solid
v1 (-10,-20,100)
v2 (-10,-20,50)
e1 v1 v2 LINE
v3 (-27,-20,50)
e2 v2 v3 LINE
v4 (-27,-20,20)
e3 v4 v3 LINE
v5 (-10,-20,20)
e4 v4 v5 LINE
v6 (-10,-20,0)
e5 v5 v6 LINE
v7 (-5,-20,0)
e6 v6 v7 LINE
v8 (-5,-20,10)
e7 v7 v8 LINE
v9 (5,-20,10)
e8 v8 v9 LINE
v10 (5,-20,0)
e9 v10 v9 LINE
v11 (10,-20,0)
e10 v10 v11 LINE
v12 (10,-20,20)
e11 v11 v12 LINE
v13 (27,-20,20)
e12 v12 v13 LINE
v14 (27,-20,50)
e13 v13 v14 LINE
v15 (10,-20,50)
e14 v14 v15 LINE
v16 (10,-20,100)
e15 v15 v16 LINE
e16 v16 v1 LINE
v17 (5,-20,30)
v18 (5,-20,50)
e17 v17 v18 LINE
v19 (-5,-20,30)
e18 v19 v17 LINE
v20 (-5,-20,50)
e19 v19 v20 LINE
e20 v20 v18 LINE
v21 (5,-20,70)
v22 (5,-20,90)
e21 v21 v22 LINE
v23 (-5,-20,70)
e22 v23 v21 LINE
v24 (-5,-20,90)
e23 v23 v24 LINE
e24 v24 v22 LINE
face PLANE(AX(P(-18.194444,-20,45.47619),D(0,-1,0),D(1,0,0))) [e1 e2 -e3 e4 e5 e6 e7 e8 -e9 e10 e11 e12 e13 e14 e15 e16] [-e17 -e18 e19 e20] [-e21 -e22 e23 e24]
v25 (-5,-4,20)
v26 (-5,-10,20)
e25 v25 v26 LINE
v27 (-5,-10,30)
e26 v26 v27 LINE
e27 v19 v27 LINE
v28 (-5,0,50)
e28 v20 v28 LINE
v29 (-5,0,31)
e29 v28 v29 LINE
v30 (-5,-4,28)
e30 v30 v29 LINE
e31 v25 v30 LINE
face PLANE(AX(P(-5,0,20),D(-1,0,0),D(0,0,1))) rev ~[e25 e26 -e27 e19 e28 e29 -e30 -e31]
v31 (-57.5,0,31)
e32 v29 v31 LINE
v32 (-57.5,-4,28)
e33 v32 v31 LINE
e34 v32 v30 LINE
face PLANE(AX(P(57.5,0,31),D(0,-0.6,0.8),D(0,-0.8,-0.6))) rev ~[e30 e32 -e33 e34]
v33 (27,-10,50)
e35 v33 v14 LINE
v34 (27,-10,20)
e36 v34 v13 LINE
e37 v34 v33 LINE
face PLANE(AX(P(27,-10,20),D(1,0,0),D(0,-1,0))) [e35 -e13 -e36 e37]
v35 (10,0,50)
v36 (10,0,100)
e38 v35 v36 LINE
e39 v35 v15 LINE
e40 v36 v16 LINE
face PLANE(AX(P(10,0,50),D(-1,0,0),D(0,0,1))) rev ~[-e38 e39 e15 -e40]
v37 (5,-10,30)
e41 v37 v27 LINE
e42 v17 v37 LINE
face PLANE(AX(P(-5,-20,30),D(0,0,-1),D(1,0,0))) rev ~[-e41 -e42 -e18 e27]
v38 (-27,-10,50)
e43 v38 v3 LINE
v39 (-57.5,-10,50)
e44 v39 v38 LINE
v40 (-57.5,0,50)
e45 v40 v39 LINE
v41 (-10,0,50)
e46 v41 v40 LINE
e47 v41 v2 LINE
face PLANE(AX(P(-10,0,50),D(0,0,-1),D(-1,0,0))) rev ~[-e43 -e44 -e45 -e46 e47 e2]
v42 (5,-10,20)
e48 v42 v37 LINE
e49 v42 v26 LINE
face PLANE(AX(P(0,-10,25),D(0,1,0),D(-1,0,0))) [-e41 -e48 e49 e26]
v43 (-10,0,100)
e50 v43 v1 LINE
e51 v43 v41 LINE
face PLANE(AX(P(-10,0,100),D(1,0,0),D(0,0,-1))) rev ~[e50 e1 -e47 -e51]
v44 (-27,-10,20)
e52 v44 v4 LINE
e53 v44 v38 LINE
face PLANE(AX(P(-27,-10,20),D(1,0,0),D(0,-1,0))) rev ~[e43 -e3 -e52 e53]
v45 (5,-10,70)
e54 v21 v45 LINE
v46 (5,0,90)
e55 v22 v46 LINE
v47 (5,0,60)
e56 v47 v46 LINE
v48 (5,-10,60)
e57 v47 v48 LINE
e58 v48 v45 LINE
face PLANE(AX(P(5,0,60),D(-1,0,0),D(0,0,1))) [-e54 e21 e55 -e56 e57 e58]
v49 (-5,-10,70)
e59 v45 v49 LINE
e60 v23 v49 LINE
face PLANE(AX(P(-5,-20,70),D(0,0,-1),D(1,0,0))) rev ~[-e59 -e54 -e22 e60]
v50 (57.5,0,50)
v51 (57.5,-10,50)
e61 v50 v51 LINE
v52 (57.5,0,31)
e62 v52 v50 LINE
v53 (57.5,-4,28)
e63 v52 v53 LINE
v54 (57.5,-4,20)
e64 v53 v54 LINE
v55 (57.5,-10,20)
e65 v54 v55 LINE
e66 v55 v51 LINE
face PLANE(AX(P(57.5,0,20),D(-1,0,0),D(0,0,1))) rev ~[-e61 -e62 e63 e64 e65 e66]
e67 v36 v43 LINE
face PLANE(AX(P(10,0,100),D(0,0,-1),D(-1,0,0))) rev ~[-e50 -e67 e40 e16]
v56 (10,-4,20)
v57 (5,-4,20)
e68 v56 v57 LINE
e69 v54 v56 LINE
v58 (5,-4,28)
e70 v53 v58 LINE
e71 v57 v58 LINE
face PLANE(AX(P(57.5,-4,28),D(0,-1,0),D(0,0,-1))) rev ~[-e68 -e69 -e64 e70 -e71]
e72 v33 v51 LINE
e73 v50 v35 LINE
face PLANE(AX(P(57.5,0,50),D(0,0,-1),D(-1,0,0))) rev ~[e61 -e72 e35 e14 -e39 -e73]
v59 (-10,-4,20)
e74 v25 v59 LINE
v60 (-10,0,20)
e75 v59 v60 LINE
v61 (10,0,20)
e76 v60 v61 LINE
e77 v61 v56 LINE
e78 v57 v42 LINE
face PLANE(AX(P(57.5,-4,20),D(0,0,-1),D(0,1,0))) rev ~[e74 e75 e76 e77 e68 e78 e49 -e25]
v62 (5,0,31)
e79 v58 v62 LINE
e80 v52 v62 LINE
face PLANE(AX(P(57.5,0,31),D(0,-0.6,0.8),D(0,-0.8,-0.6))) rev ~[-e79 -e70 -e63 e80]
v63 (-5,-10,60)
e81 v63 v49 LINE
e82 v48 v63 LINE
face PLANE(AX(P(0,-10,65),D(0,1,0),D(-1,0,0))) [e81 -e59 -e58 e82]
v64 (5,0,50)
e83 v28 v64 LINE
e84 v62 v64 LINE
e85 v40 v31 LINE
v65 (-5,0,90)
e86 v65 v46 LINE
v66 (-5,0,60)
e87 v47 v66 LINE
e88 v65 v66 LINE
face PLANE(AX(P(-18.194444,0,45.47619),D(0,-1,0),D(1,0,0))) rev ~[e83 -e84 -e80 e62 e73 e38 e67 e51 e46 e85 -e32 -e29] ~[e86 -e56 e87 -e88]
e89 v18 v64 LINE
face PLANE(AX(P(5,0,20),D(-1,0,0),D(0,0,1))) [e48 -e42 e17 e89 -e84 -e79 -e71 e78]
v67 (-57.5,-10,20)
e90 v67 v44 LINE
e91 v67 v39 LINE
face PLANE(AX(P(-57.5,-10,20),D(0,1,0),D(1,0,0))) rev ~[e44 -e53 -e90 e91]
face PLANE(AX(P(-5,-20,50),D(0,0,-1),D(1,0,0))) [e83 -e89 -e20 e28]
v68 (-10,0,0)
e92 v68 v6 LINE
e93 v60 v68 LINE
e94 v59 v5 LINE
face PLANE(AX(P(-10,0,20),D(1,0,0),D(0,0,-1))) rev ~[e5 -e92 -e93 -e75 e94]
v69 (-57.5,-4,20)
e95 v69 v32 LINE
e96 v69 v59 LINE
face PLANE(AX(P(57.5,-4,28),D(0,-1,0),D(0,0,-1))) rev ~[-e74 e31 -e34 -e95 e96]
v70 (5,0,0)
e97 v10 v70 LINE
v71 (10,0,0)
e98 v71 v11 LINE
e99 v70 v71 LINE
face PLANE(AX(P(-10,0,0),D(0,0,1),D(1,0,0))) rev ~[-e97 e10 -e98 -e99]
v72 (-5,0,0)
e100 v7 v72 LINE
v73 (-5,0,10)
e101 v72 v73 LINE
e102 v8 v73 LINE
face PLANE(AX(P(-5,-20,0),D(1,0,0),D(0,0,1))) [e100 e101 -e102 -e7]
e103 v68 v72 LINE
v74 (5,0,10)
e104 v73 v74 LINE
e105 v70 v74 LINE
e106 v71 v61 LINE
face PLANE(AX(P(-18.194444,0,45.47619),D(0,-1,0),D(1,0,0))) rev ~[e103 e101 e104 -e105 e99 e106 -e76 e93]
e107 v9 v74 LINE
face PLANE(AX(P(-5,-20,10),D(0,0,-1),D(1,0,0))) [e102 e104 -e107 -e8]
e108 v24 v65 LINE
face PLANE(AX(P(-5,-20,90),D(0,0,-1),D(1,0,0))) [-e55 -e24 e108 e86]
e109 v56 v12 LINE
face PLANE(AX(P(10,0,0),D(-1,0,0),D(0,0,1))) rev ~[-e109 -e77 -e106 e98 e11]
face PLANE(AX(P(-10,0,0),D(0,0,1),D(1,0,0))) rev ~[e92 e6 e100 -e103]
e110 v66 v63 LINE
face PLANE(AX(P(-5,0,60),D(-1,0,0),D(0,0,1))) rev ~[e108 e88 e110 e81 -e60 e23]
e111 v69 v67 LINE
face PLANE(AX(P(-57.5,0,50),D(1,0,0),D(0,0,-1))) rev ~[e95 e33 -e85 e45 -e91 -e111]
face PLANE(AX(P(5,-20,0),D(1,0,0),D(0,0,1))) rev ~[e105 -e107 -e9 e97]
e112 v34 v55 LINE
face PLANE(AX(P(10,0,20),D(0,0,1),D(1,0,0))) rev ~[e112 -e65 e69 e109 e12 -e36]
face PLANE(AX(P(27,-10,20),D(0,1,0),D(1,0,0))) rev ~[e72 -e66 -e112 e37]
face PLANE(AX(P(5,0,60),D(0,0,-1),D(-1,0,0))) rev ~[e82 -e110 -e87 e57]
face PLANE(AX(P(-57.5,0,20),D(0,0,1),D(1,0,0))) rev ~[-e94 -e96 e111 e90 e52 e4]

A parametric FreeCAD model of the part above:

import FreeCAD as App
import Part
import Sketcher

V = App.Vector

doc = App.newDocument("Part")
body = doc.addObject("PartDesign::Body", "Body")

# Sketch on XZ plane
sketch1 = body.newObject("Sketcher::SketchObject", "Sketch")
sketch1.AttachmentSupport = (doc.getObject("XZ_Plane"), [""])
sketch1.MapMode = "FlatFace"
sketch1.addGeometry([
    Part.LineSegment(V(-10, 0, 0), V(10, 0, 0)),  # 0
    Part.LineSegment(V(10, 0, 0), V(10, 20, 0)),  # 1
    Part.LineSegment(V(10, 20, 0), V(58, 20, 0)),  # 2
    Part.LineSegment(V(58, 20, 0), V(58, 50, 0)),  # 3
    Part.LineSegment(V(58, 50, 0), V(10, 50, 0)),  # 4
    Part.LineSegment(V(10, 50, 0), V(10, 100, 0)),  # 5
    Part.LineSegment(V(10, 100, 0), V(-10, 100, 0)),  # 6
    Part.LineSegment(V(-10, 100, 0), V(-10, 50, 0)),  # 7
    Part.LineSegment(V(-10, 50, 0), V(-58, 50, 0)),  # 8
    Part.LineSegment(V(-58, 50, 0), V(-58, 20, 0)),  # 9
    Part.LineSegment(V(-58, 20, 0), V(-10, 20, 0)),  # 10
    Part.LineSegment(V(-10, 20, 0), V(-10, 0, 0)),  # 11
], False)
sketch1.addConstraint([
    Sketcher.Constraint("Coincident", 0, 2, 1, 1),
    Sketcher.Constraint("Coincident", 1, 2, 2, 1),
    Sketcher.Constraint("Coincident", 2, 2, 3, 1),
    Sketcher.Constraint("Coincident", 3, 2, 4, 1),
    Sketcher.Constraint("Coincident", 4, 2, 5, 1),
    Sketcher.Constraint("Coincident", 5, 2, 6, 1),
    Sketcher.Constraint("Coincident", 6, 2, 7, 1),
    Sketcher.Constraint("Coincident", 7, 2, 8, 1),
    Sketcher.Constraint("Coincident", 8, 2, 9, 1),
    Sketcher.Constraint("Coincident", 9, 2, 10, 1),
    Sketcher.Constraint("Coincident", 10, 2, 11, 1),
    Sketcher.Constraint("Coincident", 11, 2, 0, 1),
    Sketcher.Constraint("Horizontal", 0),
    Sketcher.Constraint("Vertical", 1),
    Sketcher.Constraint("Horizontal", 2),
    Sketcher.Constraint("Vertical", 3),
    Sketcher.Constraint("Horizontal", 4),
    Sketcher.Constraint("Vertical", 5),
    Sketcher.Constraint("Horizontal", 6),
    Sketcher.Constraint("Vertical", 7),
    Sketcher.Constraint("Horizontal", 8),
    Sketcher.Constraint("Vertical", 9),
    Sketcher.Constraint("Horizontal", 10),
    Sketcher.Constraint("Vertical", 11),
    Sketcher.Constraint("Symmetric", 0, 2, 11, 2, -1, 1),
    Sketcher.Constraint("Symmetric", 4, 2, 7, 2, -2),
    Sketcher.Constraint("Symmetric", 2, 2, 9, 2, -2),
    Sketcher.Constraint("Vertical", 1, 2, 4, 2),
    Sketcher.Constraint("Equal", 6, 1),
    Sketcher.Constraint("DistanceX", 0, 1, 0, 2, 20.0),
    Sketcher.Constraint("DistanceY", 3, 1, 3, 2, 30.0),
    Sketcher.Constraint("DistanceY", 5, 1, 5, 2, 50.0),
    Sketcher.Constraint("DistanceX", 2, 1, 2, 2, 47.5),
])
pad1 = body.newObject("PartDesign::Pad", "Pad")
pad1.Profile = sketch1
pad1.Length = 20

# Sketch on XY plane
sketch2 = body.newObject("Sketcher::SketchObject", "Sketch001")
sketch2.AttachmentSupport = (doc.getObject("XY_Plane"), [""])
sketch2.MapMode = "FlatFace"
sketch2.AttachmentOffset = App.Placement(V(0, 0, 20), App.Rotation())
sketch2.addGeometry([
    Part.LineSegment(V(-58, -20, 0), V(-58, -10, 0)),
    Part.LineSegment(V(-58, -10, 0), V(-27, -10, 0)),
    Part.LineSegment(V(-27, -10, 0), V(-27, -20, 0)),
    Part.LineSegment(V(-27, -20, 0), V(-58, -20, 0)),
], False)
sketch2.addConstraint([
    Sketcher.Constraint("Coincident", 0, 2, 1, 1),
    Sketcher.Constraint("Coincident", 1, 2, 2, 1),
    Sketcher.Constraint("Coincident", 2, 2, 3, 1),
    Sketcher.Constraint("Coincident", 3, 2, 0, 1),
    Sketcher.Constraint("Vertical", 0),
    Sketcher.Constraint("Horizontal", 1),
    Sketcher.Constraint("Vertical", 2),
    Sketcher.Constraint("Horizontal", 3),
    Sketcher.Constraint("DistanceY", 0, 1, 0, 2, 10.0),
    Sketcher.Constraint("DistanceX", 1, 1, 1, 2, 30.5),
    Sketcher.Constraint("DistanceY", 0, 2, -1, 1, 10.0),
    Sketcher.Constraint("DistanceX", 1, 2, -1, 1, 27.0),
])
pocket1 = body.newObject("PartDesign::Pocket", "Pocket")
pocket1.Profile = sketch2
pocket1.Type = "ThroughAll"
pocket1.Reversed = True

# Sketch on XY plane
sketch3 = body.newObject("Sketcher::SketchObject", "Sketch002")
sketch3.AttachmentSupport = (doc.getObject("XY_Plane"), [""])
sketch3.MapMode = "FlatFace"
sketch3.AttachmentOffset = App.Placement(V(0, 0, 20), App.Rotation())
sketch3.addGeometry([
    Part.LineSegment(V(27, -20, 0), V(27, -10, 0)),
    Part.LineSegment(V(27, -10, 0), V(58, -10, 0)),
    Part.LineSegment(V(58, -10, 0), V(58, -20, 0)),
    Part.LineSegment(V(58, -20, 0), V(27, -20, 0)),
], False)
sketch3.addConstraint([
    Sketcher.Constraint("Coincident", 0, 2, 1, 1),
    Sketcher.Constraint("Coincident", 1, 2, 2, 1),
    Sketcher.Constraint("Coincident", 2, 2, 3, 1),
    Sketcher.Constraint("Coincident", 3, 2, 0, 1),
    Sketcher.Constraint("Vertical", 0),
    Sketcher.Constraint("Horizontal", 1),
    Sketcher.Constraint("Vertical", 2),
    Sketcher.Constraint("Horizontal", 3),
    Sketcher.Constraint("DistanceY", 0, 1, 0, 2, 10.0),
    Sketcher.Constraint("DistanceX", 1, 1, 1, 2, 30.5),
    Sketcher.Constraint("DistanceX", -1, 1, 0, 2, 27.0),
    Sketcher.Constraint("DistanceY", 0, 2, -1, 1, 10.0),
])
pocket2 = body.newObject("PartDesign::Pocket", "Pocket001")
pocket2.Profile = sketch3
pocket2.Type = "ThroughAll"
pocket2.Reversed = True

# Sketch on YZ plane
sketch4 = body.newObject("Sketcher::SketchObject", "Sketch003")
sketch4.AttachmentSupport = (doc.getObject("YZ_Plane"), [""])
sketch4.MapMode = "FlatFace"
sketch4.AttachmentOffset = App.Placement(V(0, 0, -57.5), App.Rotation())
sketch4.addGeometry([
    Part.LineSegment(V(0, 20, 0), V(-4, 20, 0)),
    Part.LineSegment(V(-4, 20, 0), V(-4, 28, 0)),
    Part.LineSegment(V(-4, 28, 0), V(0, 31, 0)),
    Part.LineSegment(V(0, 31, 0), V(0, 20, 0)),
], False)
sketch4.addConstraint([
    Sketcher.Constraint("Coincident", 0, 2, 1, 1),
    Sketcher.Constraint("Coincident", 1, 2, 2, 1),
    Sketcher.Constraint("Coincident", 2, 2, 3, 1),
    Sketcher.Constraint("Coincident", 3, 2, 0, 1),
    Sketcher.Constraint("Horizontal", 0),
    Sketcher.Constraint("Vertical", 1),
    Sketcher.Constraint("Vertical", 3),
    Sketcher.Constraint("PointOnObject", 2, 2, -2),
    Sketcher.Constraint("DistanceX", 0, 2, 0, 1, 4.0),
    Sketcher.Constraint("DistanceY", 1, 1, 1, 2, 8.0),
    Sketcher.Constraint("DistanceY", 3, 2, 3, 1, 11.0),
    Sketcher.Constraint("DistanceY", -1, 1, 0, 2, 20.0),
])
pocket3 = body.newObject("PartDesign::Pocket", "Pocket002")
pocket3.Profile = sketch4
pocket3.Length = 47.5
pocket3.Reversed = True

# Sketch on XZ plane
sketch5 = body.newObject("Sketcher::SketchObject", "Sketch004")
sketch5.AttachmentSupport = (doc.getObject("XZ_Plane"), [""])
sketch5.MapMode = "FlatFace"
sketch5.AttachmentOffset = App.Placement(V(0, 0, 20), App.Rotation())
sketch5.addGeometry([
    Part.LineSegment(V(-5, 90, 0), V(-5, 70, 0)),  # 0
    Part.LineSegment(V(-5, 70, 0), V(5, 70, 0)),  # 1
    Part.LineSegment(V(5, 70, 0), V(5, 90, 0)),  # 2
    Part.LineSegment(V(5, 90, 0), V(-5, 90, 0)),  # 3
    Part.LineSegment(V(-5, 50, 0), V(-5, 30, 0)),  # 4
    Part.LineSegment(V(-5, 30, 0), V(5, 30, 0)),  # 5
    Part.LineSegment(V(5, 30, 0), V(5, 50, 0)),  # 6
    Part.LineSegment(V(5, 50, 0), V(-5, 50, 0)),  # 7
    Part.LineSegment(V(-5, 10, 0), V(-5, 0, 0)),  # 8
    Part.LineSegment(V(-5, 0, 0), V(5, 0, 0)),  # 9
    Part.LineSegment(V(5, 0, 0), V(5, 10, 0)),  # 10
    Part.LineSegment(V(5, 10, 0), V(-5, 10, 0)),  # 11
], False)
sketch5.addConstraint([
    Sketcher.Constraint("Coincident", 0, 2, 1, 1),
    Sketcher.Constraint("Coincident", 1, 2, 2, 1),
    Sketcher.Constraint("Coincident", 2, 2, 3, 1),
    Sketcher.Constraint("Coincident", 3, 2, 0, 1),
    Sketcher.Constraint("Coincident", 4, 2, 5, 1),
    Sketcher.Constraint("Coincident", 5, 2, 6, 1),
    Sketcher.Constraint("Coincident", 6, 2, 7, 1),
    Sketcher.Constraint("Coincident", 7, 2, 4, 1),
    Sketcher.Constraint("Coincident", 8, 2, 9, 1),
    Sketcher.Constraint("Coincident", 9, 2, 10, 1),
    Sketcher.Constraint("Coincident", 10, 2, 11, 1),
    Sketcher.Constraint("Coincident", 11, 2, 8, 1),
    Sketcher.Constraint("Vertical", 0),
    Sketcher.Constraint("Horizontal", 1),
    Sketcher.Constraint("Vertical", 2),
    Sketcher.Constraint("Horizontal", 3),
    Sketcher.Constraint("Vertical", 4),
    Sketcher.Constraint("Horizontal", 5),
    Sketcher.Constraint("Vertical", 6),
    Sketcher.Constraint("Horizontal", 7),
    Sketcher.Constraint("Vertical", 8),
    Sketcher.Constraint("Horizontal", 9),
    Sketcher.Constraint("Vertical", 10),
    Sketcher.Constraint("Horizontal", 11),
    Sketcher.Constraint("Symmetric", 8, 2, 9, 2, -1, 1),
    Sketcher.Constraint("Vertical", 3, 2, 4, 2),
    Sketcher.Constraint("Vertical", 2, 2, 5, 2),
    Sketcher.Constraint("Vertical", 7, 2, 8, 2),
    Sketcher.Constraint("Vertical", 6, 2, 9, 2),
    Sketcher.Constraint("Equal", 2, 4),
    Sketcher.Constraint("Equal", 11, 8),
    Sketcher.Constraint("DistanceX", 1, 1, 1, 2, 10.0),
    Sketcher.Constraint("DistanceY", 0, 2, 0, 1, 20.0),
    Sketcher.Constraint("DistanceY", -1, 1, 0, 2, 70.0),
    Sketcher.Constraint("DistanceY", -1, 1, 4, 2, 30.0),
])
pocket4 = body.newObject("PartDesign::Pocket", "Pocket003")
pocket4.Profile = sketch5
pocket4.Type = "ThroughAll"

# Sketch on XZ plane
sketch6 = body.newObject("Sketcher::SketchObject", "Sketch005")
sketch6.AttachmentSupport = (doc.getObject("XZ_Plane"), [""])
sketch6.MapMode = "FlatFace"
sketch6.addGeometry([
    Part.LineSegment(V(5, 70, 0), V(5, 60, 0)),  # 0
    Part.LineSegment(V(5, 60, 0), V(-5, 60, 0)),  # 1
    Part.LineSegment(V(-5, 60, 0), V(-5, 70, 0)),  # 2
    Part.LineSegment(V(-5, 70, 0), V(5, 70, 0)),  # 3
    Part.LineSegment(V(5, 30, 0), V(5, 20, 0)),  # 4
    Part.LineSegment(V(5, 20, 0), V(-5, 20, 0)),  # 5
    Part.LineSegment(V(-5, 20, 0), V(-5, 30, 0)),  # 6
    Part.LineSegment(V(-5, 30, 0), V(5, 30, 0)),  # 7
], False)
sketch6.addConstraint([
    Sketcher.Constraint("Coincident", 0, 2, 1, 1),
    Sketcher.Constraint("Coincident", 1, 2, 2, 1),
    Sketcher.Constraint("Coincident", 2, 2, 3, 1),
    Sketcher.Constraint("Coincident", 3, 2, 0, 1),
    Sketcher.Constraint("Coincident", 4, 2, 5, 1),
    Sketcher.Constraint("Coincident", 5, 2, 6, 1),
    Sketcher.Constraint("Coincident", 6, 2, 7, 1),
    Sketcher.Constraint("Coincident", 7, 2, 4, 1),
    Sketcher.Constraint("Vertical", 0),
    Sketcher.Constraint("Horizontal", 1),
    Sketcher.Constraint("Vertical", 2),
    Sketcher.Constraint("Horizontal", 3),
    Sketcher.Constraint("Vertical", 4),
    Sketcher.Constraint("Horizontal", 5),
    Sketcher.Constraint("Vertical", 6),
    Sketcher.Constraint("Horizontal", 7),
    Sketcher.Constraint("Vertical", 3, 2, 4, 2),
    Sketcher.Constraint("Vertical", 2, 2, 5, 2),
    Sketcher.Constraint("Equal", 7, 0),
    Sketcher.Constraint("Equal", 2, 4),
    Sketcher.Constraint("DistanceX", 1, 2, 1, 1, 10.0),
    Sketcher.Constraint("DistanceX", -1, 1, 0, 2, 5.0),
    Sketcher.Constraint("DistanceY", -1, 1, 0, 2, 60.0),
    Sketcher.Constraint("DistanceY", -1, 1, 4, 2, 20.0),
])
pocket5 = body.newObject("PartDesign::Pocket", "Pocket004")
pocket5.Profile = sketch6
pocket5.Length = 10
pocket5.Reversed = True

# Sketch on YZ plane
sketch7 = body.newObject("Sketcher::SketchObject", "Sketch006")
sketch7.AttachmentSupport = (doc.getObject("YZ_Plane"), [""])
sketch7.MapMode = "FlatFace"
sketch7.AttachmentOffset = App.Placement(V(0, 0, 57.5), App.Rotation())
sketch7.addGeometry([
    Part.LineSegment(V(-4, 20, 0), V(0, 20, 0)),
    Part.LineSegment(V(0, 20, 0), V(0, 31, 0)),
    Part.LineSegment(V(0, 31, 0), V(-4, 28, 0)),
    Part.LineSegment(V(-4, 28, 0), V(-4, 20, 0)),
], False)
sketch7.addConstraint([
    Sketcher.Constraint("Coincident", 0, 2, 1, 1),
    Sketcher.Constraint("Coincident", 1, 2, 2, 1),
    Sketcher.Constraint("Coincident", 2, 2, 3, 1),
    Sketcher.Constraint("Coincident", 3, 2, 0, 1),
    Sketcher.Constraint("Horizontal", 0),
    Sketcher.Constraint("Vertical", 1),
    Sketcher.Constraint("Vertical", 3),
    Sketcher.Constraint("PointOnObject", 0, 2, -2),
    Sketcher.Constraint("DistanceX", 0, 1, 0, 2, 4.0),
    Sketcher.Constraint("DistanceY", 1, 1, 1, 2, 11.0),
    Sketcher.Constraint("DistanceY", 3, 2, 3, 1, 8.0),
    Sketcher.Constraint("DistanceY", -1, 1, 0, 2, 20.0),
])
pocket6 = body.newObject("PartDesign::Pocket", "Pocket005")
pocket6.Profile = sketch7
pocket6.Length = 150

doc.recompute()
